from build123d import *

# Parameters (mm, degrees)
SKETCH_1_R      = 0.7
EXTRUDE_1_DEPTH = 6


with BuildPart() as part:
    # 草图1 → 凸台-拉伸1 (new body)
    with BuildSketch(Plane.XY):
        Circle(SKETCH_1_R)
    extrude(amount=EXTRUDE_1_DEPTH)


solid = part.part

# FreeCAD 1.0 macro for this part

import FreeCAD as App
import Part
import Sketcher
from FreeCAD import Vector
Q = App.Units.Quantity

doc = App.newDocument("Part")
body = doc.addObject("PartDesign::Body", "Body")

sketch1 = body.newObject("Sketcher::SketchObject", "Sketch")
sketch1.AttachmentSupport = (doc.getObject("XY_Plane"), [""])
sketch1.MapMode = "FlatFace"
sketch1.addGeometry(Part.Circle(Vector(0, 0, 0), Vector(0, 0, 1), 0.7), False)
sketch1.addConstraint(Sketcher.Constraint("Coincident", 0, 3, -1, 1))
sketch1.addConstraint(Sketcher.Constraint("Diameter", 0, Q("1.4 mm")))
pad1 = body.newObject("PartDesign::Pad", "Pad")
pad1.Profile = sketch1
pad1.Length = 6

doc.recompute()
